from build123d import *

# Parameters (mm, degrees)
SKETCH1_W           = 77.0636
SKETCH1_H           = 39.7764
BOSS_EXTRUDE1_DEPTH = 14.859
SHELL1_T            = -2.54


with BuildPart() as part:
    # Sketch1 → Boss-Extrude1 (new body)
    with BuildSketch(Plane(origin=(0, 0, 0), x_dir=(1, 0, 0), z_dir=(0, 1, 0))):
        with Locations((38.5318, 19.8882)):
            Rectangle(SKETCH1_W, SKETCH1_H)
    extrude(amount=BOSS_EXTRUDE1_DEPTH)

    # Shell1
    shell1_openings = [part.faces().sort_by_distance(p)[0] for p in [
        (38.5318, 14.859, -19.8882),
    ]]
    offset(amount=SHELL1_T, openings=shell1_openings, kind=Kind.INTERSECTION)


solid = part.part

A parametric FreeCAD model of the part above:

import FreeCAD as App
import Part
import Sketcher
Q = App.Units.Quantity


def faces_at(feature, points):
    """Names of the faces that lie closest to the given points."""
    faces = feature.Shape.Faces
    near = lambda p: min(range(len(faces)), key=lambda i: faces[i].distToShape(Part.Vertex(*p))[0])
    return sorted({f"Face{near(p) + 1}" for p in points})

doc = App.newDocument("Part")
body = doc.addObject("PartDesign::Body", "Body")

# Sketch on XZ plane
sketch1 = body.newObject("Sketcher::SketchObject", "Sketch")
sketch1.AttachmentSupport = (doc.getObject("XZ_Plane"), [""])
sketch1.MapMode = "FlatFace"
sketch1.addGeometry(Part.LineSegment(App.Vector(0, -40, 0), App.Vector(0, 0, 0)), False)
sketch1.addGeometry(Part.LineSegment(App.Vector(0, 0, 0), App.Vector(77, 0, 0)), False)
sketch1.addGeometry(Part.LineSegment(App.Vector(77, 0, 0), App.Vector(77, -40, 0)), False)
sketch1.addGeometry(Part.LineSegment(App.Vector(77, -40, 0), App.Vector(0, -40, 0)), False)
sketch1.addConstraint(Sketcher.Constraint("Coincident", 0, 2, 1, 1))
sketch1.addConstraint(Sketcher.Constraint("Coincident", 1, 2, 2, 1))
sketch1.addConstraint(Sketcher.Constraint("Coincident", 2, 2, 3, 1))
sketch1.addConstraint(Sketcher.Constraint("Coincident", 3, 2, 0, 1))
sketch1.addConstraint(Sketcher.Constraint("Vertical", 0))
sketch1.addConstraint(Sketcher.Constraint("Horizontal", 1))
sketch1.addConstraint(Sketcher.Constraint("Vertical", 2))
sketch1.addConstraint(Sketcher.Constraint("Horizontal", 3))
sketch1.addConstraint(Sketcher.Constraint("Coincident", 0, 2, -1, 1))
sketch1.addConstraint(Sketcher.Constraint("DistanceX", 1, 1, 1, 2, Q("3.034 in")))
sketch1.addConstraint(Sketcher.Constraint("DistanceY", 0, 1, 0, 2, Q("1.566 in")))
pad1 = body.newObject("PartDesign::Pad", "Pad")
pad1.Profile = sketch1
pad1.Length = Q("0.585 in")
pad1.Reversed = True
doc.recompute()

thickness = body.newObject("PartDesign::Thickness", "Thickness")
thickness.Base = (pad1, faces_at(pad1, [(38.532, 14.859, -19.888)]))
thickness.Value = Q("0.1 in")
thickness.Reversed = True
thickness.Join = "Intersection"

doc.recompute()
